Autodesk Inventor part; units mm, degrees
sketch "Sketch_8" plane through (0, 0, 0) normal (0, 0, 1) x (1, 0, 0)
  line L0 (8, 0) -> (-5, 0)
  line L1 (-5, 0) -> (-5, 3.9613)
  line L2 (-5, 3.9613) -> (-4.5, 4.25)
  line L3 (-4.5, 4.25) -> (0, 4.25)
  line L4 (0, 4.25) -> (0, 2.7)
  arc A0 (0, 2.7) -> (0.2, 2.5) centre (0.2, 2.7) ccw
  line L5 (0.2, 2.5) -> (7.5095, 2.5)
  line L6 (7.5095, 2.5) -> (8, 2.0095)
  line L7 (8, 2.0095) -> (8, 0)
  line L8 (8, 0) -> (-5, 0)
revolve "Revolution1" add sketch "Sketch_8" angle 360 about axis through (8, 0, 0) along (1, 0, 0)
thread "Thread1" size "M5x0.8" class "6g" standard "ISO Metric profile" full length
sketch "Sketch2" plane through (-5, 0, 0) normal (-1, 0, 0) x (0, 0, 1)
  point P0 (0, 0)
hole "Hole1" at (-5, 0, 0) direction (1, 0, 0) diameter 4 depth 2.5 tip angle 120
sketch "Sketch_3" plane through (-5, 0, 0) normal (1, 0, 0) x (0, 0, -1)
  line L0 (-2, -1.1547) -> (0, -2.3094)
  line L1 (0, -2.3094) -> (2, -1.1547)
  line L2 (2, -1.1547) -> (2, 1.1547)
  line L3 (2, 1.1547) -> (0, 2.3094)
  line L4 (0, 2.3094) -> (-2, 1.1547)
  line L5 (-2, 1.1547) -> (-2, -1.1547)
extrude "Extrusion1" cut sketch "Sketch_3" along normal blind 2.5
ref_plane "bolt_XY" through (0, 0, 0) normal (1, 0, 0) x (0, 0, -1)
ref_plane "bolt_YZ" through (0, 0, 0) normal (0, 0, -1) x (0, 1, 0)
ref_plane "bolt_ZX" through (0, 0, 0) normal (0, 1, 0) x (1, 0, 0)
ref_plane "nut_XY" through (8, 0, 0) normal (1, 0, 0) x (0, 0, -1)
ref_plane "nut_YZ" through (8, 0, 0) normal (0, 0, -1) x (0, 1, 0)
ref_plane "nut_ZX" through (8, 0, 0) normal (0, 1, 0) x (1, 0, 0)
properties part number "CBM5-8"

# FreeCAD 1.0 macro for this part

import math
import FreeCAD as App
import Part
import Sketcher
from FreeCAD import Vector
Q = App.Units.Quantity

doc = App.newDocument("Part")
body = doc.addObject("PartDesign::Body", "Body")

# Sketch on XY plane
sketch1 = body.newObject("Sketcher::SketchObject", "Sketch")
sketch1.AttachmentSupport = (doc.getObject("XY_Plane"), [""])
sketch1.MapMode = "FlatFace"
sketch1.addGeometry([
    Part.LineSegment(Vector(-5, 0, 0), Vector(8, 0, 0)),  # 0
    Part.LineSegment(Vector(8, 0, 0), Vector(8, 2.0095, 0)),  # 1
    Part.LineSegment(Vector(8, 2.0095, 0), Vector(7.5095, 2.5, 0)),  # 2
    Part.LineSegment(Vector(7.5095, 2.5, 0), Vector(0.2, 2.5, 0)),  # 3
    Part.ArcOfCircle(Part.Circle(Vector(0.2, 2.7, 0), Vector(0, 0, 1), 0.2), math.radians(180), math.radians(270)),  # 4
    Part.LineSegment(Vector(0, 2.7, 0), Vector(0, 4.25, 0)),  # 5
    Part.LineSegment(Vector(0, 4.25, 0), Vector(-4.5, 4.25, 0)),  # 6
    Part.LineSegment(Vector(-4.5, 4.25, 0), Vector(-5, 3.9613, 0)),  # 7
    Part.LineSegment(Vector(-5, 3.9613, 0), Vector(-5, 0, 0)),  # 8
], False)
sketch1.addConstraint([
    Sketcher.Constraint("Coincident", 0, 2, 1, 1),
    Sketcher.Constraint("Coincident", 1, 2, 2, 1),
    Sketcher.Constraint("Coincident", 2, 2, 3, 1),
    Sketcher.Constraint("Tangent", 3, 2, 4, 2),
    Sketcher.Constraint("Tangent", 4, 1, 5, 1),
    Sketcher.Constraint("Coincident", 5, 2, 6, 1),
    Sketcher.Constraint("Coincident", 6, 2, 7, 1),
    Sketcher.Constraint("Coincident", 7, 2, 8, 1),
    Sketcher.Constraint("Coincident", 8, 2, 0, 1),
    Sketcher.Constraint("Horizontal", 0),
    Sketcher.Constraint("Vertical", 1),
    Sketcher.Constraint("Horizontal", 3),
    Sketcher.Constraint("Vertical", 5),
    Sketcher.Constraint("Horizontal", 6),
    Sketcher.Constraint("Vertical", 8),
    Sketcher.Constraint("PointOnObject", 0, 2, -1),
    Sketcher.Constraint("PointOnObject", 4, 1, -2),
    Sketcher.Constraint("Radius", 4, Q("0.2 mm")),
    Sketcher.Constraint("DistanceX", 0, 1, 0, 2, Q("13 mm")),
    Sketcher.Constraint("Angle", 2, Q("135 deg")),
    Sketcher.Constraint("DistanceX", 6, 2, 6, 1, Q("4.5 mm")),
    Sketcher.Constraint("DistanceX", -1, 1, 0, 2, Q("8 mm")),
    Sketcher.Constraint("DistanceY", 5, 1, 5, 2, Q("1.55 mm")),
    Sketcher.Constraint("DistanceY", -1, 1, 4, 3, Q("2.7 mm")),
    Sketcher.Constraint("DistanceX", 3, 2, 3, 1, Q("7.3095 mm")),
    Sketcher.Constraint("DistanceY", 8, 2, 8, 1, Q("3.9613 mm")),
])
revolution = body.newObject("PartDesign::Revolution", "Revolution")
revolution.Profile = sketch1
revolution.ReferenceAxis = (sketch1, ["H_Axis"])
revolution.Angle = 360

# Sketch on YZ plane
sketch2 = body.newObject("Sketcher::SketchObject", "Sketch001")
sketch2.AttachmentSupport = (doc.getObject("YZ_Plane"), [""])
sketch2.MapMode = "FlatFace"
sketch2.AttachmentOffset = App.Placement(Vector(0, 0, -5), App.Rotation())
sketch2.addGeometry(Part.Circle(Vector(0, 0, 0), Vector(0, 0, 1), 2), False)
sketch2.addConstraint([
    Sketcher.Constraint("Coincident", 0, 3, -1, 1),
    Sketcher.Constraint("Diameter", 0, Q("4 mm")),
])
doc.recompute()
hole = body.newObject("PartDesign::Hole", "Hole")
hole.Profile = sketch2
hole.ThreadType = "None"
hole.Diameter = 4
hole.DepthType = "Dimension"
hole.Depth = 2.5
hole.DrillPoint = "Angled"
hole.DrillPointAngle = 120
hole.Reversed = True

# Sketch on YZ plane
sketch3 = body.newObject("Sketcher::SketchObject", "Sketch002")
sketch3.AttachmentSupport = (doc.getObject("YZ_Plane"), [""])
sketch3.MapMode = "FlatFace"
sketch3.AttachmentOffset = App.Placement(Vector(0, 0, -5), App.Rotation())
sketch3.addGeometry([
    Part.LineSegment(Vector(1.1547, 2, 0), Vector(-1.1547, 2, 0)),  # 0
    Part.LineSegment(Vector(-1.1547, 2, 0), Vector(-2.3094, 0, 0)),  # 1
    Part.LineSegment(Vector(-2.3094, 0, 0), Vector(-1.1547, -2, 0)),  # 2
    Part.LineSegment(Vector(-1.1547, -2, 0), Vector(1.1547, -2, 0)),  # 3
    Part.LineSegment(Vector(1.1547, -2, 0), Vector(2.3094, 0, 0)),  # 4
    Part.LineSegment(Vector(2.3094, 0, 0), Vector(1.1547, 2, 0)),  # 5
], False)
sketch3.addConstraint([
    Sketcher.Constraint("Coincident", 0, 2, 1, 1),
    Sketcher.Constraint("Coincident", 1, 2, 2, 1),
    Sketcher.Constraint("Coincident", 2, 2, 3, 1),
    Sketcher.Constraint("Coincident", 3, 2, 4, 1),
    Sketcher.Constraint("Coincident", 4, 2, 5, 1),
    Sketcher.Constraint("Coincident", 5, 2, 0, 1),
    Sketcher.Constraint("Horizontal", 0),
    Sketcher.Constraint("Horizontal", 3),
    Sketcher.Constraint("Symmetric", 0, 2, 3, 2, -1, 1),
    Sketcher.Constraint("Symmetric", 1, 2, 4, 2, -1, 1),
    Sketcher.Constraint("PointOnObject", 1, 2, -1),
    Sketcher.Constraint("Parallel", 2, 5),
    Sketcher.Constraint("Vertical", 0, 2, 2, 2),
    Sketcher.Constraint("Angle", 1, Q("-120 deg")),
    Sketcher.Constraint("DistanceY", -1, 1, 0, 2, Q("2 mm")),
    Sketcher.Constraint("DistanceX", 0, 2, 0, 1, Q("2.3094 mm")),
])
pocket1 = body.newObject("PartDesign::Pocket", "Pocket")
pocket1.Profile = sketch3
pocket1.Length = 2.5
pocket1.Reversed = True

doc.recompute()
